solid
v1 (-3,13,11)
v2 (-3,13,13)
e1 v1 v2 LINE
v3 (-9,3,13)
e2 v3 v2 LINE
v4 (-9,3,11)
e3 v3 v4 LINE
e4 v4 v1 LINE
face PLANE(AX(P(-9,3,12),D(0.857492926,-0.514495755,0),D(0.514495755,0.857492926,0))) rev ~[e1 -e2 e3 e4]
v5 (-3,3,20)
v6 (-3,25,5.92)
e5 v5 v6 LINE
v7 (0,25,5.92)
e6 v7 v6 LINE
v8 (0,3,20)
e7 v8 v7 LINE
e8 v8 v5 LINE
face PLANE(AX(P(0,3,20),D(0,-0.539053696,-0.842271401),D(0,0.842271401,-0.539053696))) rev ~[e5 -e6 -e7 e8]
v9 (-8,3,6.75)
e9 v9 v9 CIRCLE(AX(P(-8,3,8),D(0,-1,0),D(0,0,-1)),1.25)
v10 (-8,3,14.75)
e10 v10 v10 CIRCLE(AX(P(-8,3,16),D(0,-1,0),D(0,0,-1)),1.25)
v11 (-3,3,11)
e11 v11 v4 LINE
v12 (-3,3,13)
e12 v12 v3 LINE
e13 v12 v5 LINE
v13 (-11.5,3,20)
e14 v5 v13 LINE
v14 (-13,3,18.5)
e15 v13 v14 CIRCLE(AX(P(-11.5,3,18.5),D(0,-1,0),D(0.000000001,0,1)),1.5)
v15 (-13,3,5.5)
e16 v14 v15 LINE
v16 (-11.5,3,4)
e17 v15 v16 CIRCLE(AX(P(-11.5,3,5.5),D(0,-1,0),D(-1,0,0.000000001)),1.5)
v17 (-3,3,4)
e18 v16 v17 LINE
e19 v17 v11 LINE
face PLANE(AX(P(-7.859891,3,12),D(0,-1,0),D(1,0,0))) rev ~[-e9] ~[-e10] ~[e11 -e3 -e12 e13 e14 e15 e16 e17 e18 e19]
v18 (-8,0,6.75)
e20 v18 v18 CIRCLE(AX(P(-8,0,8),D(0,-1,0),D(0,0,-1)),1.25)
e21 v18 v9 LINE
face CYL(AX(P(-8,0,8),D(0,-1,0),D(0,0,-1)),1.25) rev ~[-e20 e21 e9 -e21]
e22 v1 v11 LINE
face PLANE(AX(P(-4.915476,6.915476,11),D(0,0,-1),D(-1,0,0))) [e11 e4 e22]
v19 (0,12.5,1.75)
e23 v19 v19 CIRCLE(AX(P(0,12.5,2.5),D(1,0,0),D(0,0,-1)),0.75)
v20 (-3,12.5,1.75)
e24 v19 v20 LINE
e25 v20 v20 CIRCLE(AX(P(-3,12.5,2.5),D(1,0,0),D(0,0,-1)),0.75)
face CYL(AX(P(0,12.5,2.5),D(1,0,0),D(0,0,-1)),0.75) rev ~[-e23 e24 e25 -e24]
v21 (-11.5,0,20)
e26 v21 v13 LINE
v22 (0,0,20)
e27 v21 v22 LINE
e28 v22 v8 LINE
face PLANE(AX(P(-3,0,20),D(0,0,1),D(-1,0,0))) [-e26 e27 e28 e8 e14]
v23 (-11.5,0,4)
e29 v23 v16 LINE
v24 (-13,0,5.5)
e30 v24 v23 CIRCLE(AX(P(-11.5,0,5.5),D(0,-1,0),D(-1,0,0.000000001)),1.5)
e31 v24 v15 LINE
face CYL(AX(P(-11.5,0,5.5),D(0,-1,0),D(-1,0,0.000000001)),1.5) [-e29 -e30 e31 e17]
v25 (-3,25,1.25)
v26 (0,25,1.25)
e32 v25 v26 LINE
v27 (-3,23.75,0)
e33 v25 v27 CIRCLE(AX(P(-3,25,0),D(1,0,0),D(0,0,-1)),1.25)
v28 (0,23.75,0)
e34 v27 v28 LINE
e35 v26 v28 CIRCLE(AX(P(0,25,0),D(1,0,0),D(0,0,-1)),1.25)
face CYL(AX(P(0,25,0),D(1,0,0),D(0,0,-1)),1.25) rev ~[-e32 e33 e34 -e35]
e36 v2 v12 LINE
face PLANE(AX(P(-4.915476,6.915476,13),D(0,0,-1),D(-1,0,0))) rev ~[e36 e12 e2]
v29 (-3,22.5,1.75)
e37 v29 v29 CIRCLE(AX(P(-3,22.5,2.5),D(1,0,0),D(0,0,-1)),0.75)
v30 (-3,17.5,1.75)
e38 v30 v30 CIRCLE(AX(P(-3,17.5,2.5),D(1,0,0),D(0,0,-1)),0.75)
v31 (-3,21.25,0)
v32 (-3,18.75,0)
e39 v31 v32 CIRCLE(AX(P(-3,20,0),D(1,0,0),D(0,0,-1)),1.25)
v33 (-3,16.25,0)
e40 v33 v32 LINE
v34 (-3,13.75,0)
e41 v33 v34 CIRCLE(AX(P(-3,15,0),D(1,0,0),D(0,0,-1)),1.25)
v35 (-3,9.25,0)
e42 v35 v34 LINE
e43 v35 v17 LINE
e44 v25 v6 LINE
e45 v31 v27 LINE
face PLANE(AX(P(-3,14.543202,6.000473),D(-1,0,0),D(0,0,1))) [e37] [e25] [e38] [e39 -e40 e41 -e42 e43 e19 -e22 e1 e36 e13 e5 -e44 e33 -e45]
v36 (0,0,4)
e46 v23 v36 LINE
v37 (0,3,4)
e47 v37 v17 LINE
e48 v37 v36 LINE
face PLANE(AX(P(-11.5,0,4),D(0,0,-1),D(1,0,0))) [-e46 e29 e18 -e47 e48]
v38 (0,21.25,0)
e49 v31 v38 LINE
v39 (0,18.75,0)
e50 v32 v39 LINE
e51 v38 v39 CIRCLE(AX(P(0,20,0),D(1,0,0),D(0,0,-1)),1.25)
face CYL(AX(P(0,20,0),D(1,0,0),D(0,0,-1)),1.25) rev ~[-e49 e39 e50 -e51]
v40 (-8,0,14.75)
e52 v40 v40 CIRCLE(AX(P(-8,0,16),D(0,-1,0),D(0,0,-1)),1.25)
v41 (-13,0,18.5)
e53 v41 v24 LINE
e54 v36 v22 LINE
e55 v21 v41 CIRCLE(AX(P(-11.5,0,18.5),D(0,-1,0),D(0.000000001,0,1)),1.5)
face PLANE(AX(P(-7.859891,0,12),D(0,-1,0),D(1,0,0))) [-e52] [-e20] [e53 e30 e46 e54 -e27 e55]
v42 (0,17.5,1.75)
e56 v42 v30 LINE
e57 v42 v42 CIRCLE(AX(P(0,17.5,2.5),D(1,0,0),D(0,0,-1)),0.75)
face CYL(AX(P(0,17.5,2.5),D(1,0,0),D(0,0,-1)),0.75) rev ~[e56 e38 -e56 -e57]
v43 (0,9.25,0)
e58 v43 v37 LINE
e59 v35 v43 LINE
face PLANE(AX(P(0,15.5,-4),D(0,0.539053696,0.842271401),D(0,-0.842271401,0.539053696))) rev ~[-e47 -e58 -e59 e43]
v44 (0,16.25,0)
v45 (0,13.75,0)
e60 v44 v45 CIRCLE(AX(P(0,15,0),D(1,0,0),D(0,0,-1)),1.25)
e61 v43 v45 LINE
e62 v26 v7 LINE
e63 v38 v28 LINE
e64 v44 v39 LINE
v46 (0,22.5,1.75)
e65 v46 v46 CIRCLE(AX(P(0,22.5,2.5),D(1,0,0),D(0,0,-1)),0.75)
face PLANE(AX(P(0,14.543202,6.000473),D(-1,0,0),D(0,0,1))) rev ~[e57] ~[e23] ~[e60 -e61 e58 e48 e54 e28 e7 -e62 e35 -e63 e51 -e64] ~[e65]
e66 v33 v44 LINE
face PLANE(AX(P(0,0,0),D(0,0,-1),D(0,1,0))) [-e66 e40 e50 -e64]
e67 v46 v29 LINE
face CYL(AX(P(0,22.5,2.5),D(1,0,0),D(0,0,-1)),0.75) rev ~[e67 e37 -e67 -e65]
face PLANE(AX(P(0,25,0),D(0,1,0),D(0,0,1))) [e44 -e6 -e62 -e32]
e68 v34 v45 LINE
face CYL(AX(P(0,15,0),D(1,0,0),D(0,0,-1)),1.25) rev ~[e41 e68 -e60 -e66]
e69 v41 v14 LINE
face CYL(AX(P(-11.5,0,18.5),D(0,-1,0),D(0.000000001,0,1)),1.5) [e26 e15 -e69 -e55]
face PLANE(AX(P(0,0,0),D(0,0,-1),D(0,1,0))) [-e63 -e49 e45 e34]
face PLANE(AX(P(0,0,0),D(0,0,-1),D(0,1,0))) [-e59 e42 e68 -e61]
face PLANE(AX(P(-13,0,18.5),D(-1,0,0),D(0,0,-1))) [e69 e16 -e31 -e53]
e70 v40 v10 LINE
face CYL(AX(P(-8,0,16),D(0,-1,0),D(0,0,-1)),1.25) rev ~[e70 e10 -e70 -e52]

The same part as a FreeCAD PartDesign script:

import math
import FreeCAD as App
import Part
import Sketcher

doc = App.newDocument("Part")
body = doc.addObject("PartDesign::Body", "Body")

# Sketch on YZ plane
sketch1 = body.newObject("Sketcher::SketchObject", "Sketch")
sketch1.AttachmentSupport = (doc.getObject("YZ_Plane"), [""])
sketch1.MapMode = "FlatFace"
sketch1.addGeometry(Part.LineSegment(App.Vector(15.5, -4, 0), App.Vector(30, -4, 0)), False)
sketch1.addGeometry(Part.ArcOfCircle(Part.Circle(App.Vector(30, 0, 0), App.Vector(0, 0, 1), 4), math.radians(-90), math.radians(90)), False)
sketch1.addGeometry(Part.LineSegment(App.Vector(30, 4, 0), App.Vector(28, 4, 0)), False)
sketch1.addGeometry(Part.LineSegment(App.Vector(28, 4, 0), App.Vector(3, 20, 0)), False)
sketch1.addGeometry(Part.LineSegment(App.Vector(3, 20, 0), App.Vector(0, 20, 0)), False)
sketch1.addGeometry(Part.LineSegment(App.Vector(0, 20, 0), App.Vector(0, 4, 0)), False)
sketch1.addGeometry(Part.LineSegment(App.Vector(0, 4, 0), App.Vector(3, 4, 0)), False)
sketch1.addGeometry(Part.LineSegment(App.Vector(3, 4, 0), App.Vector(15.5, -4, 0)), False)
sketch1.addGeometry(Part.Circle(App.Vector(15, 0, 0), App.Vector(0, 0, 1), 1.2), False)
sketch1.addGeometry(Part.Circle(App.Vector(20, 0, 0), App.Vector(0, 0, 1), 1.2), False)
sketch1.addGeometry(Part.Circle(App.Vector(25, 0, 0), App.Vector(0, 0, 1), 1.2), False)
sketch1.addGeometry(Part.Circle(App.Vector(30, 0, 0), App.Vector(0, 0, 1), 1.2), False)
sketch1.addConstraint(Sketcher.Constraint("Tangent", 0, 2, 1, 1))
sketch1.addConstraint(Sketcher.Constraint("Tangent", 1, 2, 2, 1))
sketch1.addConstraint(Sketcher.Constraint("Coincident", 2, 2, 3, 1))
sketch1.addConstraint(Sketcher.Constraint("Coincident", 3, 2, 4, 1))
sketch1.addConstraint(Sketcher.Constraint("Coincident", 4, 2, 5, 1))
sketch1.addConstraint(Sketcher.Constraint("Coincident", 5, 2, 6, 1))
sketch1.addConstraint(Sketcher.Constraint("Coincident", 6, 2, 7, 1))
sketch1.addConstraint(Sketcher.Constraint("Coincident", 7, 2, 0, 1))
sketch1.addConstraint(Sketcher.Constraint("Horizontal", 0))
sketch1.addConstraint(Sketcher.Constraint("Horizontal", 2))
sketch1.addConstraint(Sketcher.Constraint("Horizontal", 4))
sketch1.addConstraint(Sketcher.Constraint("Vertical", 5))
sketch1.addConstraint(Sketcher.Constraint("Horizontal", 6))
sketch1.addConstraint(Sketcher.Constraint("Coincident", 11, 3, 1, 3))
sketch1.addConstraint(Sketcher.Constraint("Equal", 8, 9))
sketch1.addConstraint(Sketcher.Constraint("Equal", 9, 10))
sketch1.addConstraint(Sketcher.Constraint("Equal", 10, 11))
sketch1.addConstraint(Sketcher.Constraint("PointOnObject", 1, 3, -1))
sketch1.addConstraint(Sketcher.Constraint("PointOnObject", 8, 3, -1))
sketch1.addConstraint(Sketcher.Constraint("PointOnObject", 9, 3, -1))
sketch1.addConstraint(Sketcher.Constraint("PointOnObject", 10, 3, -1))
sketch1.addConstraint(Sketcher.Constraint("PointOnObject", 4, 2, -2))
sketch1.addConstraint(Sketcher.Constraint("Parallel", 3, 7))
sketch1.addConstraint(Sketcher.Constraint("Horizontal", 2, 2, 5, 2))
sketch1.addConstraint(Sketcher.Constraint("Vertical", 3, 2, 6, 2))
sketch1.addConstraint(Sketcher.Constraint("Radius", 1, 4.0))
sketch1.addConstraint(Sketcher.Constraint("Diameter", 8, 2.5))
sketch1.addConstraint(Sketcher.Constraint("DistanceX", 2, 2, 2, 1, 2.0))
sketch1.addConstraint(Sketcher.Constraint("DistanceX", 4, 2, 4, 1, 3.0))
sketch1.addConstraint(Sketcher.Constraint("DistanceY", 5, 2, 5, 1, 16.0))
sketch1.addConstraint(Sketcher.Constraint("DistanceX", 0, 1, 0, 2, 14.5))
sketch1.addConstraint(Sketcher.Constraint("DistanceX", -1, 1, 8, 3, 15.0))
sketch1.addConstraint(Sketcher.Constraint("DistanceX", -1, 1, 9, 3, 20.0))
sketch1.addConstraint(Sketcher.Constraint("DistanceX", -1, 1, 10, 3, 25.0))
pad1 = body.newObject("PartDesign::Pad", "Pad")
pad1.Profile = sketch1
pad1.Length = 3
pad1.Reversed = True

# Sketch on XZ plane
sketch2 = body.newObject("Sketcher::SketchObject", "Sketch001")
sketch2.AttachmentSupport = (doc.getObject("XZ_Plane"), [""])
sketch2.MapMode = "FlatFace"
sketch2.addGeometry(Part.LineSegment(App.Vector(-3, 20, 0), App.Vector(-11.5, 20, 0)), False)
sketch2.addGeometry(Part.ArcOfCircle(Part.Circle(App.Vector(-11.5, 18.5, 0), App.Vector(0, 0, 1), 1.5), math.radians(90), math.radians(180)), False)
sketch2.addGeometry(Part.LineSegment(App.Vector(-13, 18.5, 0), App.Vector(-13, 5.5, 0)), False)
sketch2.addGeometry(Part.ArcOfCircle(Part.Circle(App.Vector(-11.5, 5.5, 0), App.Vector(0, 0, 1), 1.5), math.radians(180), math.radians(270)), False)
sketch2.addGeometry(Part.LineSegment(App.Vector(-11.5, 4, 0), App.Vector(-3, 4, 0)), False)
sketch2.addGeometry(Part.LineSegment(App.Vector(-3, 4, 0), App.Vector(-3, 20, 0)), False)
sketch2.addGeometry(Part.Circle(App.Vector(-8, 8, 0), App.Vector(0, 0, 1), 1.2), False)
sketch2.addGeometry(Part.Circle(App.Vector(-8, 16, 0), App.Vector(0, 0, 1), 1.2), False)
sketch2.addConstraint(Sketcher.Constraint("Tangent", 0, 2, 1, 1))
sketch2.addConstraint(Sketcher.Constraint("Tangent", 1, 2, 2, 1))
sketch2.addConstraint(Sketcher.Constraint("Tangent", 2, 2, 3, 1))
sketch2.addConstraint(Sketcher.Constraint("Tangent", 3, 2, 4, 1))
sketch2.addConstraint(Sketcher.Constraint("Coincident", 4, 2, 5, 1))
sketch2.addConstraint(Sketcher.Constraint("Coincident", 5, 2, 0, 1))
sketch2.addConstraint(Sketcher.Constraint("Horizontal", 0))
sketch2.addConstraint(Sketcher.Constraint("Vertical", 2))
sketch2.addConstraint(Sketcher.Constraint("Horizontal", 4))
sketch2.addConstraint(Sketcher.Constraint("Vertical", 5))
sketch2.addConstraint(Sketcher.Constraint("Equal", 1, 3))
sketch2.addConstraint(Sketcher.Constraint("Equal", 6, 7))
sketch2.addConstraint(Sketcher.Constraint("Vertical", 6, 3, 7, 3))
sketch2.addConstraint(Sketcher.Constraint("Diameter", 6, 2.5))
sketch2.addConstraint(Sketcher.Constraint("Radius", 1, 1.5))
sketch2.addConstraint(Sketcher.Constraint("DistanceY", 2, 2, 2, 1, 13.0))
sketch2.addConstraint(Sketcher.Constraint("DistanceX", 0, 2, 0, 1, 8.5))
sketch2.addConstraint(Sketcher.Constraint("DistanceX", 6, 3, -1, 1, 8.0))
sketch2.addConstraint(Sketcher.Constraint("DistanceY", -1, 1, 6, 3, 8.0))
sketch2.addConstraint(Sketcher.Constraint("DistanceY", -1, 1, 7, 3, 16.0))
sketch2.addConstraint(Sketcher.Constraint("DistanceY", -1, 1, 0, 2, 20.0))
sketch2.addConstraint(Sketcher.Constraint("DistanceX", 1, 2, -1, 1, 13.0))
pad2 = body.newObject("PartDesign::Pad", "Pad001")
pad2.Profile = sketch2
pad2.Length = 3
pad2.Reversed = True

# Sketch on XY plane
sketch3 = body.newObject("Sketcher::SketchObject", "Sketch002")
sketch3.AttachmentSupport = (doc.getObject("XY_Plane"), [""])
sketch3.MapMode = "FlatFace"
sketch3.AttachmentOffset = App.Placement(App.Vector(0, 0, 12), App.Rotation())
sketch3.addGeometry(Part.LineSegment(App.Vector(-9, 3, 0), App.Vector(-3, 3, 0)), False)
sketch3.addGeometry(Part.LineSegment(App.Vector(-3, 3, 0), App.Vector(-3, 13, 0)), False)
sketch3.addGeometry(Part.LineSegment(App.Vector(-3, 13, 0), App.Vector(-9, 3, 0)), False)
sketch3.addConstraint(Sketcher.Constraint("Coincident", 0, 2, 1, 1))
sketch3.addConstraint(Sketcher.Constraint("Coincident", 1, 2, 2, 1))
sketch3.addConstraint(Sketcher.Constraint("Coincident", 2, 2, 0, 1))
sketch3.addConstraint(Sketcher.Constraint("Horizontal", 0))
sketch3.addConstraint(Sketcher.Constraint("Vertical", 1))
sketch3.addConstraint(Sketcher.Constraint("DistanceX", 0, 1, 0, 2, 6.0))
sketch3.addConstraint(Sketcher.Constraint("DistanceY", 1, 1, 1, 2, 10.0))
sketch3.addConstraint(Sketcher.Constraint("DistanceX", 0, 2, -1, 1, 3.0))
sketch3.addConstraint(Sketcher.Constraint("DistanceY", -1, 1, 0, 2, 3.0))
pad3 = body.newObject("PartDesign::Pad", "Pad002")
pad3.Profile = sketch3
pad3.Length = 2
pad3.Midplane = True

# Sketch on YZ plane
sketch4 = body.newObject("Sketcher::SketchObject", "Sketch003")
sketch4.AttachmentSupport = (doc.getObject("YZ_Plane"), [""])
sketch4.MapMode = "FlatFace"
sketch4.addGeometry(Part.Circle(App.Vector(12.5, 2.5, 0), App.Vector(0, 0, 1), 0.8), False)
sketch4.addConstraint(Sketcher.Constraint("Diameter", 0, 1.5))
sketch4.addConstraint(Sketcher.Constraint("DistanceX", -1, 1, 0, 3, 12.5))
sketch4.addConstraint(Sketcher.Constraint("DistanceY", -1, 1, 0, 3, 2.5))
pocket1 = body.newObject("PartDesign::Pocket", "Pocket")
pocket1.Profile = sketch4
pocket1.Type = "UpToFirst"

# Sketch on YZ plane
sketch5 = body.newObject("Sketcher::SketchObject", "Sketch004")
sketch5.AttachmentSupport = (doc.getObject("YZ_Plane"), [""])
sketch5.MapMode = "FlatFace"
sketch5.addGeometry(Part.Circle(App.Vector(22.5, 2.5, 0), App.Vector(0, 0, 1), 0.8), False)
sketch5.addConstraint(Sketcher.Constraint("Diameter", 0, 1.5))
sketch5.addConstraint(Sketcher.Constraint("DistanceX", -1, 1, 0, 3, 22.5))
sketch5.addConstraint(Sketcher.Constraint("DistanceY", -1, 1, 0, 3, 2.5))
pocket2 = body.newObject("PartDesign::Pocket", "Pocket001")
pocket2.Profile = sketch5
pocket2.Type = "UpToFirst"

# Sketch on YZ plane
sketch6 = body.newObject("Sketcher::SketchObject", "Sketch005")
sketch6.AttachmentSupport = (doc.getObject("YZ_Plane"), [""])
sketch6.MapMode = "FlatFace"
sketch6.addGeometry(Part.Circle(App.Vector(17.5, 2.5, 0), App.Vector(0, 0, 1), 0.8), False)
sketch6.addConstraint(Sketcher.Constraint("Diameter", 0, 1.5))
sketch6.addConstraint(Sketcher.Constraint("DistanceX", -1, 1, 0, 3, 17.5))
sketch6.addConstraint(Sketcher.Constraint("DistanceY", -1, 1, 0, 3, 2.5))
pocket3 = body.newObject("PartDesign::Pocket", "Pocket002")
pocket3.Profile = sketch6
pocket3.Type = "UpToFirst"

# Sketch on YZ plane
sketch7 = body.newObject("Sketcher::SketchObject", "Sketch006")
sketch7.AttachmentSupport = (doc.getObject("YZ_Plane"), [""])
sketch7.MapMode = "FlatFace"
sketch7.addGeometry(Part.LineSegment(App.Vector(25, 0, 0), App.Vector(0, 0, 0)), False)
sketch7.addGeometry(Part.LineSegment(App.Vector(0, 0, 0), App.Vector(0, -7, 0)), False)
sketch7.addGeometry(Part.LineSegment(App.Vector(0, -7, 0), App.Vector(35, -7, 0)), False)
sketch7.addGeometry(Part.LineSegment(App.Vector(35, -7, 0), App.Vector(35, 8, 0)), False)
sketch7.addGeometry(Part.LineSegment(App.Vector(35, 8, 0), App.Vector(25, 8, 0)), False)
sketch7.addGeometry(Part.LineSegment(App.Vector(25, 8, 0), App.Vector(25, 0, 0)), False)
sketch7.addConstraint(Sketcher.Constraint("Coincident", 0, 2, 1, 1))
sketch7.addConstraint(Sketcher.Constraint("Coincident", 1, 2, 2, 1))
sketch7.addConstraint(Sketcher.Constraint("Coincident", 2, 2, 3, 1))
sketch7.addConstraint(Sketcher.Constraint("Coincident", 3, 2, 4, 1))
sketch7.addConstraint(Sketcher.Constraint("Coincident", 4, 2, 5, 1))
sketch7.addConstraint(Sketcher.Constraint("Coincident", 5, 2, 0, 1))
sketch7.addConstraint(Sketcher.Constraint("Horizontal", 0))
sketch7.addConstraint(Sketcher.Constraint("Vertical", 1))
sketch7.addConstraint(Sketcher.Constraint("Horizontal", 2))
sketch7.addConstraint(Sketcher.Constraint("Vertical", 3))
sketch7.addConstraint(Sketcher.Constraint("Horizontal", 4))
sketch7.addConstraint(Sketcher.Constraint("Vertical", 5))
sketch7.addConstraint(Sketcher.Constraint("Coincident", 0, 2, -1, 1))
sketch7.addConstraint(Sketcher.Constraint("DistanceX", 0, 2, 0, 1, 25.0))
sketch7.addConstraint(Sketcher.Constraint("DistanceX", 2, 1, 2, 2, 35.0))
sketch7.addConstraint(Sketcher.Constraint("DistanceY", 1, 2, 1, 1, 7.0))
sketch7.addConstraint(Sketcher.Constraint("DistanceY", 3, 1, 3, 2, 15.0))
pocket4 = body.newObject("PartDesign::Pocket", "Pocket003")
pocket4.Profile = sketch7
pocket4.Type = "UpToFirst"

doc.recompute()
